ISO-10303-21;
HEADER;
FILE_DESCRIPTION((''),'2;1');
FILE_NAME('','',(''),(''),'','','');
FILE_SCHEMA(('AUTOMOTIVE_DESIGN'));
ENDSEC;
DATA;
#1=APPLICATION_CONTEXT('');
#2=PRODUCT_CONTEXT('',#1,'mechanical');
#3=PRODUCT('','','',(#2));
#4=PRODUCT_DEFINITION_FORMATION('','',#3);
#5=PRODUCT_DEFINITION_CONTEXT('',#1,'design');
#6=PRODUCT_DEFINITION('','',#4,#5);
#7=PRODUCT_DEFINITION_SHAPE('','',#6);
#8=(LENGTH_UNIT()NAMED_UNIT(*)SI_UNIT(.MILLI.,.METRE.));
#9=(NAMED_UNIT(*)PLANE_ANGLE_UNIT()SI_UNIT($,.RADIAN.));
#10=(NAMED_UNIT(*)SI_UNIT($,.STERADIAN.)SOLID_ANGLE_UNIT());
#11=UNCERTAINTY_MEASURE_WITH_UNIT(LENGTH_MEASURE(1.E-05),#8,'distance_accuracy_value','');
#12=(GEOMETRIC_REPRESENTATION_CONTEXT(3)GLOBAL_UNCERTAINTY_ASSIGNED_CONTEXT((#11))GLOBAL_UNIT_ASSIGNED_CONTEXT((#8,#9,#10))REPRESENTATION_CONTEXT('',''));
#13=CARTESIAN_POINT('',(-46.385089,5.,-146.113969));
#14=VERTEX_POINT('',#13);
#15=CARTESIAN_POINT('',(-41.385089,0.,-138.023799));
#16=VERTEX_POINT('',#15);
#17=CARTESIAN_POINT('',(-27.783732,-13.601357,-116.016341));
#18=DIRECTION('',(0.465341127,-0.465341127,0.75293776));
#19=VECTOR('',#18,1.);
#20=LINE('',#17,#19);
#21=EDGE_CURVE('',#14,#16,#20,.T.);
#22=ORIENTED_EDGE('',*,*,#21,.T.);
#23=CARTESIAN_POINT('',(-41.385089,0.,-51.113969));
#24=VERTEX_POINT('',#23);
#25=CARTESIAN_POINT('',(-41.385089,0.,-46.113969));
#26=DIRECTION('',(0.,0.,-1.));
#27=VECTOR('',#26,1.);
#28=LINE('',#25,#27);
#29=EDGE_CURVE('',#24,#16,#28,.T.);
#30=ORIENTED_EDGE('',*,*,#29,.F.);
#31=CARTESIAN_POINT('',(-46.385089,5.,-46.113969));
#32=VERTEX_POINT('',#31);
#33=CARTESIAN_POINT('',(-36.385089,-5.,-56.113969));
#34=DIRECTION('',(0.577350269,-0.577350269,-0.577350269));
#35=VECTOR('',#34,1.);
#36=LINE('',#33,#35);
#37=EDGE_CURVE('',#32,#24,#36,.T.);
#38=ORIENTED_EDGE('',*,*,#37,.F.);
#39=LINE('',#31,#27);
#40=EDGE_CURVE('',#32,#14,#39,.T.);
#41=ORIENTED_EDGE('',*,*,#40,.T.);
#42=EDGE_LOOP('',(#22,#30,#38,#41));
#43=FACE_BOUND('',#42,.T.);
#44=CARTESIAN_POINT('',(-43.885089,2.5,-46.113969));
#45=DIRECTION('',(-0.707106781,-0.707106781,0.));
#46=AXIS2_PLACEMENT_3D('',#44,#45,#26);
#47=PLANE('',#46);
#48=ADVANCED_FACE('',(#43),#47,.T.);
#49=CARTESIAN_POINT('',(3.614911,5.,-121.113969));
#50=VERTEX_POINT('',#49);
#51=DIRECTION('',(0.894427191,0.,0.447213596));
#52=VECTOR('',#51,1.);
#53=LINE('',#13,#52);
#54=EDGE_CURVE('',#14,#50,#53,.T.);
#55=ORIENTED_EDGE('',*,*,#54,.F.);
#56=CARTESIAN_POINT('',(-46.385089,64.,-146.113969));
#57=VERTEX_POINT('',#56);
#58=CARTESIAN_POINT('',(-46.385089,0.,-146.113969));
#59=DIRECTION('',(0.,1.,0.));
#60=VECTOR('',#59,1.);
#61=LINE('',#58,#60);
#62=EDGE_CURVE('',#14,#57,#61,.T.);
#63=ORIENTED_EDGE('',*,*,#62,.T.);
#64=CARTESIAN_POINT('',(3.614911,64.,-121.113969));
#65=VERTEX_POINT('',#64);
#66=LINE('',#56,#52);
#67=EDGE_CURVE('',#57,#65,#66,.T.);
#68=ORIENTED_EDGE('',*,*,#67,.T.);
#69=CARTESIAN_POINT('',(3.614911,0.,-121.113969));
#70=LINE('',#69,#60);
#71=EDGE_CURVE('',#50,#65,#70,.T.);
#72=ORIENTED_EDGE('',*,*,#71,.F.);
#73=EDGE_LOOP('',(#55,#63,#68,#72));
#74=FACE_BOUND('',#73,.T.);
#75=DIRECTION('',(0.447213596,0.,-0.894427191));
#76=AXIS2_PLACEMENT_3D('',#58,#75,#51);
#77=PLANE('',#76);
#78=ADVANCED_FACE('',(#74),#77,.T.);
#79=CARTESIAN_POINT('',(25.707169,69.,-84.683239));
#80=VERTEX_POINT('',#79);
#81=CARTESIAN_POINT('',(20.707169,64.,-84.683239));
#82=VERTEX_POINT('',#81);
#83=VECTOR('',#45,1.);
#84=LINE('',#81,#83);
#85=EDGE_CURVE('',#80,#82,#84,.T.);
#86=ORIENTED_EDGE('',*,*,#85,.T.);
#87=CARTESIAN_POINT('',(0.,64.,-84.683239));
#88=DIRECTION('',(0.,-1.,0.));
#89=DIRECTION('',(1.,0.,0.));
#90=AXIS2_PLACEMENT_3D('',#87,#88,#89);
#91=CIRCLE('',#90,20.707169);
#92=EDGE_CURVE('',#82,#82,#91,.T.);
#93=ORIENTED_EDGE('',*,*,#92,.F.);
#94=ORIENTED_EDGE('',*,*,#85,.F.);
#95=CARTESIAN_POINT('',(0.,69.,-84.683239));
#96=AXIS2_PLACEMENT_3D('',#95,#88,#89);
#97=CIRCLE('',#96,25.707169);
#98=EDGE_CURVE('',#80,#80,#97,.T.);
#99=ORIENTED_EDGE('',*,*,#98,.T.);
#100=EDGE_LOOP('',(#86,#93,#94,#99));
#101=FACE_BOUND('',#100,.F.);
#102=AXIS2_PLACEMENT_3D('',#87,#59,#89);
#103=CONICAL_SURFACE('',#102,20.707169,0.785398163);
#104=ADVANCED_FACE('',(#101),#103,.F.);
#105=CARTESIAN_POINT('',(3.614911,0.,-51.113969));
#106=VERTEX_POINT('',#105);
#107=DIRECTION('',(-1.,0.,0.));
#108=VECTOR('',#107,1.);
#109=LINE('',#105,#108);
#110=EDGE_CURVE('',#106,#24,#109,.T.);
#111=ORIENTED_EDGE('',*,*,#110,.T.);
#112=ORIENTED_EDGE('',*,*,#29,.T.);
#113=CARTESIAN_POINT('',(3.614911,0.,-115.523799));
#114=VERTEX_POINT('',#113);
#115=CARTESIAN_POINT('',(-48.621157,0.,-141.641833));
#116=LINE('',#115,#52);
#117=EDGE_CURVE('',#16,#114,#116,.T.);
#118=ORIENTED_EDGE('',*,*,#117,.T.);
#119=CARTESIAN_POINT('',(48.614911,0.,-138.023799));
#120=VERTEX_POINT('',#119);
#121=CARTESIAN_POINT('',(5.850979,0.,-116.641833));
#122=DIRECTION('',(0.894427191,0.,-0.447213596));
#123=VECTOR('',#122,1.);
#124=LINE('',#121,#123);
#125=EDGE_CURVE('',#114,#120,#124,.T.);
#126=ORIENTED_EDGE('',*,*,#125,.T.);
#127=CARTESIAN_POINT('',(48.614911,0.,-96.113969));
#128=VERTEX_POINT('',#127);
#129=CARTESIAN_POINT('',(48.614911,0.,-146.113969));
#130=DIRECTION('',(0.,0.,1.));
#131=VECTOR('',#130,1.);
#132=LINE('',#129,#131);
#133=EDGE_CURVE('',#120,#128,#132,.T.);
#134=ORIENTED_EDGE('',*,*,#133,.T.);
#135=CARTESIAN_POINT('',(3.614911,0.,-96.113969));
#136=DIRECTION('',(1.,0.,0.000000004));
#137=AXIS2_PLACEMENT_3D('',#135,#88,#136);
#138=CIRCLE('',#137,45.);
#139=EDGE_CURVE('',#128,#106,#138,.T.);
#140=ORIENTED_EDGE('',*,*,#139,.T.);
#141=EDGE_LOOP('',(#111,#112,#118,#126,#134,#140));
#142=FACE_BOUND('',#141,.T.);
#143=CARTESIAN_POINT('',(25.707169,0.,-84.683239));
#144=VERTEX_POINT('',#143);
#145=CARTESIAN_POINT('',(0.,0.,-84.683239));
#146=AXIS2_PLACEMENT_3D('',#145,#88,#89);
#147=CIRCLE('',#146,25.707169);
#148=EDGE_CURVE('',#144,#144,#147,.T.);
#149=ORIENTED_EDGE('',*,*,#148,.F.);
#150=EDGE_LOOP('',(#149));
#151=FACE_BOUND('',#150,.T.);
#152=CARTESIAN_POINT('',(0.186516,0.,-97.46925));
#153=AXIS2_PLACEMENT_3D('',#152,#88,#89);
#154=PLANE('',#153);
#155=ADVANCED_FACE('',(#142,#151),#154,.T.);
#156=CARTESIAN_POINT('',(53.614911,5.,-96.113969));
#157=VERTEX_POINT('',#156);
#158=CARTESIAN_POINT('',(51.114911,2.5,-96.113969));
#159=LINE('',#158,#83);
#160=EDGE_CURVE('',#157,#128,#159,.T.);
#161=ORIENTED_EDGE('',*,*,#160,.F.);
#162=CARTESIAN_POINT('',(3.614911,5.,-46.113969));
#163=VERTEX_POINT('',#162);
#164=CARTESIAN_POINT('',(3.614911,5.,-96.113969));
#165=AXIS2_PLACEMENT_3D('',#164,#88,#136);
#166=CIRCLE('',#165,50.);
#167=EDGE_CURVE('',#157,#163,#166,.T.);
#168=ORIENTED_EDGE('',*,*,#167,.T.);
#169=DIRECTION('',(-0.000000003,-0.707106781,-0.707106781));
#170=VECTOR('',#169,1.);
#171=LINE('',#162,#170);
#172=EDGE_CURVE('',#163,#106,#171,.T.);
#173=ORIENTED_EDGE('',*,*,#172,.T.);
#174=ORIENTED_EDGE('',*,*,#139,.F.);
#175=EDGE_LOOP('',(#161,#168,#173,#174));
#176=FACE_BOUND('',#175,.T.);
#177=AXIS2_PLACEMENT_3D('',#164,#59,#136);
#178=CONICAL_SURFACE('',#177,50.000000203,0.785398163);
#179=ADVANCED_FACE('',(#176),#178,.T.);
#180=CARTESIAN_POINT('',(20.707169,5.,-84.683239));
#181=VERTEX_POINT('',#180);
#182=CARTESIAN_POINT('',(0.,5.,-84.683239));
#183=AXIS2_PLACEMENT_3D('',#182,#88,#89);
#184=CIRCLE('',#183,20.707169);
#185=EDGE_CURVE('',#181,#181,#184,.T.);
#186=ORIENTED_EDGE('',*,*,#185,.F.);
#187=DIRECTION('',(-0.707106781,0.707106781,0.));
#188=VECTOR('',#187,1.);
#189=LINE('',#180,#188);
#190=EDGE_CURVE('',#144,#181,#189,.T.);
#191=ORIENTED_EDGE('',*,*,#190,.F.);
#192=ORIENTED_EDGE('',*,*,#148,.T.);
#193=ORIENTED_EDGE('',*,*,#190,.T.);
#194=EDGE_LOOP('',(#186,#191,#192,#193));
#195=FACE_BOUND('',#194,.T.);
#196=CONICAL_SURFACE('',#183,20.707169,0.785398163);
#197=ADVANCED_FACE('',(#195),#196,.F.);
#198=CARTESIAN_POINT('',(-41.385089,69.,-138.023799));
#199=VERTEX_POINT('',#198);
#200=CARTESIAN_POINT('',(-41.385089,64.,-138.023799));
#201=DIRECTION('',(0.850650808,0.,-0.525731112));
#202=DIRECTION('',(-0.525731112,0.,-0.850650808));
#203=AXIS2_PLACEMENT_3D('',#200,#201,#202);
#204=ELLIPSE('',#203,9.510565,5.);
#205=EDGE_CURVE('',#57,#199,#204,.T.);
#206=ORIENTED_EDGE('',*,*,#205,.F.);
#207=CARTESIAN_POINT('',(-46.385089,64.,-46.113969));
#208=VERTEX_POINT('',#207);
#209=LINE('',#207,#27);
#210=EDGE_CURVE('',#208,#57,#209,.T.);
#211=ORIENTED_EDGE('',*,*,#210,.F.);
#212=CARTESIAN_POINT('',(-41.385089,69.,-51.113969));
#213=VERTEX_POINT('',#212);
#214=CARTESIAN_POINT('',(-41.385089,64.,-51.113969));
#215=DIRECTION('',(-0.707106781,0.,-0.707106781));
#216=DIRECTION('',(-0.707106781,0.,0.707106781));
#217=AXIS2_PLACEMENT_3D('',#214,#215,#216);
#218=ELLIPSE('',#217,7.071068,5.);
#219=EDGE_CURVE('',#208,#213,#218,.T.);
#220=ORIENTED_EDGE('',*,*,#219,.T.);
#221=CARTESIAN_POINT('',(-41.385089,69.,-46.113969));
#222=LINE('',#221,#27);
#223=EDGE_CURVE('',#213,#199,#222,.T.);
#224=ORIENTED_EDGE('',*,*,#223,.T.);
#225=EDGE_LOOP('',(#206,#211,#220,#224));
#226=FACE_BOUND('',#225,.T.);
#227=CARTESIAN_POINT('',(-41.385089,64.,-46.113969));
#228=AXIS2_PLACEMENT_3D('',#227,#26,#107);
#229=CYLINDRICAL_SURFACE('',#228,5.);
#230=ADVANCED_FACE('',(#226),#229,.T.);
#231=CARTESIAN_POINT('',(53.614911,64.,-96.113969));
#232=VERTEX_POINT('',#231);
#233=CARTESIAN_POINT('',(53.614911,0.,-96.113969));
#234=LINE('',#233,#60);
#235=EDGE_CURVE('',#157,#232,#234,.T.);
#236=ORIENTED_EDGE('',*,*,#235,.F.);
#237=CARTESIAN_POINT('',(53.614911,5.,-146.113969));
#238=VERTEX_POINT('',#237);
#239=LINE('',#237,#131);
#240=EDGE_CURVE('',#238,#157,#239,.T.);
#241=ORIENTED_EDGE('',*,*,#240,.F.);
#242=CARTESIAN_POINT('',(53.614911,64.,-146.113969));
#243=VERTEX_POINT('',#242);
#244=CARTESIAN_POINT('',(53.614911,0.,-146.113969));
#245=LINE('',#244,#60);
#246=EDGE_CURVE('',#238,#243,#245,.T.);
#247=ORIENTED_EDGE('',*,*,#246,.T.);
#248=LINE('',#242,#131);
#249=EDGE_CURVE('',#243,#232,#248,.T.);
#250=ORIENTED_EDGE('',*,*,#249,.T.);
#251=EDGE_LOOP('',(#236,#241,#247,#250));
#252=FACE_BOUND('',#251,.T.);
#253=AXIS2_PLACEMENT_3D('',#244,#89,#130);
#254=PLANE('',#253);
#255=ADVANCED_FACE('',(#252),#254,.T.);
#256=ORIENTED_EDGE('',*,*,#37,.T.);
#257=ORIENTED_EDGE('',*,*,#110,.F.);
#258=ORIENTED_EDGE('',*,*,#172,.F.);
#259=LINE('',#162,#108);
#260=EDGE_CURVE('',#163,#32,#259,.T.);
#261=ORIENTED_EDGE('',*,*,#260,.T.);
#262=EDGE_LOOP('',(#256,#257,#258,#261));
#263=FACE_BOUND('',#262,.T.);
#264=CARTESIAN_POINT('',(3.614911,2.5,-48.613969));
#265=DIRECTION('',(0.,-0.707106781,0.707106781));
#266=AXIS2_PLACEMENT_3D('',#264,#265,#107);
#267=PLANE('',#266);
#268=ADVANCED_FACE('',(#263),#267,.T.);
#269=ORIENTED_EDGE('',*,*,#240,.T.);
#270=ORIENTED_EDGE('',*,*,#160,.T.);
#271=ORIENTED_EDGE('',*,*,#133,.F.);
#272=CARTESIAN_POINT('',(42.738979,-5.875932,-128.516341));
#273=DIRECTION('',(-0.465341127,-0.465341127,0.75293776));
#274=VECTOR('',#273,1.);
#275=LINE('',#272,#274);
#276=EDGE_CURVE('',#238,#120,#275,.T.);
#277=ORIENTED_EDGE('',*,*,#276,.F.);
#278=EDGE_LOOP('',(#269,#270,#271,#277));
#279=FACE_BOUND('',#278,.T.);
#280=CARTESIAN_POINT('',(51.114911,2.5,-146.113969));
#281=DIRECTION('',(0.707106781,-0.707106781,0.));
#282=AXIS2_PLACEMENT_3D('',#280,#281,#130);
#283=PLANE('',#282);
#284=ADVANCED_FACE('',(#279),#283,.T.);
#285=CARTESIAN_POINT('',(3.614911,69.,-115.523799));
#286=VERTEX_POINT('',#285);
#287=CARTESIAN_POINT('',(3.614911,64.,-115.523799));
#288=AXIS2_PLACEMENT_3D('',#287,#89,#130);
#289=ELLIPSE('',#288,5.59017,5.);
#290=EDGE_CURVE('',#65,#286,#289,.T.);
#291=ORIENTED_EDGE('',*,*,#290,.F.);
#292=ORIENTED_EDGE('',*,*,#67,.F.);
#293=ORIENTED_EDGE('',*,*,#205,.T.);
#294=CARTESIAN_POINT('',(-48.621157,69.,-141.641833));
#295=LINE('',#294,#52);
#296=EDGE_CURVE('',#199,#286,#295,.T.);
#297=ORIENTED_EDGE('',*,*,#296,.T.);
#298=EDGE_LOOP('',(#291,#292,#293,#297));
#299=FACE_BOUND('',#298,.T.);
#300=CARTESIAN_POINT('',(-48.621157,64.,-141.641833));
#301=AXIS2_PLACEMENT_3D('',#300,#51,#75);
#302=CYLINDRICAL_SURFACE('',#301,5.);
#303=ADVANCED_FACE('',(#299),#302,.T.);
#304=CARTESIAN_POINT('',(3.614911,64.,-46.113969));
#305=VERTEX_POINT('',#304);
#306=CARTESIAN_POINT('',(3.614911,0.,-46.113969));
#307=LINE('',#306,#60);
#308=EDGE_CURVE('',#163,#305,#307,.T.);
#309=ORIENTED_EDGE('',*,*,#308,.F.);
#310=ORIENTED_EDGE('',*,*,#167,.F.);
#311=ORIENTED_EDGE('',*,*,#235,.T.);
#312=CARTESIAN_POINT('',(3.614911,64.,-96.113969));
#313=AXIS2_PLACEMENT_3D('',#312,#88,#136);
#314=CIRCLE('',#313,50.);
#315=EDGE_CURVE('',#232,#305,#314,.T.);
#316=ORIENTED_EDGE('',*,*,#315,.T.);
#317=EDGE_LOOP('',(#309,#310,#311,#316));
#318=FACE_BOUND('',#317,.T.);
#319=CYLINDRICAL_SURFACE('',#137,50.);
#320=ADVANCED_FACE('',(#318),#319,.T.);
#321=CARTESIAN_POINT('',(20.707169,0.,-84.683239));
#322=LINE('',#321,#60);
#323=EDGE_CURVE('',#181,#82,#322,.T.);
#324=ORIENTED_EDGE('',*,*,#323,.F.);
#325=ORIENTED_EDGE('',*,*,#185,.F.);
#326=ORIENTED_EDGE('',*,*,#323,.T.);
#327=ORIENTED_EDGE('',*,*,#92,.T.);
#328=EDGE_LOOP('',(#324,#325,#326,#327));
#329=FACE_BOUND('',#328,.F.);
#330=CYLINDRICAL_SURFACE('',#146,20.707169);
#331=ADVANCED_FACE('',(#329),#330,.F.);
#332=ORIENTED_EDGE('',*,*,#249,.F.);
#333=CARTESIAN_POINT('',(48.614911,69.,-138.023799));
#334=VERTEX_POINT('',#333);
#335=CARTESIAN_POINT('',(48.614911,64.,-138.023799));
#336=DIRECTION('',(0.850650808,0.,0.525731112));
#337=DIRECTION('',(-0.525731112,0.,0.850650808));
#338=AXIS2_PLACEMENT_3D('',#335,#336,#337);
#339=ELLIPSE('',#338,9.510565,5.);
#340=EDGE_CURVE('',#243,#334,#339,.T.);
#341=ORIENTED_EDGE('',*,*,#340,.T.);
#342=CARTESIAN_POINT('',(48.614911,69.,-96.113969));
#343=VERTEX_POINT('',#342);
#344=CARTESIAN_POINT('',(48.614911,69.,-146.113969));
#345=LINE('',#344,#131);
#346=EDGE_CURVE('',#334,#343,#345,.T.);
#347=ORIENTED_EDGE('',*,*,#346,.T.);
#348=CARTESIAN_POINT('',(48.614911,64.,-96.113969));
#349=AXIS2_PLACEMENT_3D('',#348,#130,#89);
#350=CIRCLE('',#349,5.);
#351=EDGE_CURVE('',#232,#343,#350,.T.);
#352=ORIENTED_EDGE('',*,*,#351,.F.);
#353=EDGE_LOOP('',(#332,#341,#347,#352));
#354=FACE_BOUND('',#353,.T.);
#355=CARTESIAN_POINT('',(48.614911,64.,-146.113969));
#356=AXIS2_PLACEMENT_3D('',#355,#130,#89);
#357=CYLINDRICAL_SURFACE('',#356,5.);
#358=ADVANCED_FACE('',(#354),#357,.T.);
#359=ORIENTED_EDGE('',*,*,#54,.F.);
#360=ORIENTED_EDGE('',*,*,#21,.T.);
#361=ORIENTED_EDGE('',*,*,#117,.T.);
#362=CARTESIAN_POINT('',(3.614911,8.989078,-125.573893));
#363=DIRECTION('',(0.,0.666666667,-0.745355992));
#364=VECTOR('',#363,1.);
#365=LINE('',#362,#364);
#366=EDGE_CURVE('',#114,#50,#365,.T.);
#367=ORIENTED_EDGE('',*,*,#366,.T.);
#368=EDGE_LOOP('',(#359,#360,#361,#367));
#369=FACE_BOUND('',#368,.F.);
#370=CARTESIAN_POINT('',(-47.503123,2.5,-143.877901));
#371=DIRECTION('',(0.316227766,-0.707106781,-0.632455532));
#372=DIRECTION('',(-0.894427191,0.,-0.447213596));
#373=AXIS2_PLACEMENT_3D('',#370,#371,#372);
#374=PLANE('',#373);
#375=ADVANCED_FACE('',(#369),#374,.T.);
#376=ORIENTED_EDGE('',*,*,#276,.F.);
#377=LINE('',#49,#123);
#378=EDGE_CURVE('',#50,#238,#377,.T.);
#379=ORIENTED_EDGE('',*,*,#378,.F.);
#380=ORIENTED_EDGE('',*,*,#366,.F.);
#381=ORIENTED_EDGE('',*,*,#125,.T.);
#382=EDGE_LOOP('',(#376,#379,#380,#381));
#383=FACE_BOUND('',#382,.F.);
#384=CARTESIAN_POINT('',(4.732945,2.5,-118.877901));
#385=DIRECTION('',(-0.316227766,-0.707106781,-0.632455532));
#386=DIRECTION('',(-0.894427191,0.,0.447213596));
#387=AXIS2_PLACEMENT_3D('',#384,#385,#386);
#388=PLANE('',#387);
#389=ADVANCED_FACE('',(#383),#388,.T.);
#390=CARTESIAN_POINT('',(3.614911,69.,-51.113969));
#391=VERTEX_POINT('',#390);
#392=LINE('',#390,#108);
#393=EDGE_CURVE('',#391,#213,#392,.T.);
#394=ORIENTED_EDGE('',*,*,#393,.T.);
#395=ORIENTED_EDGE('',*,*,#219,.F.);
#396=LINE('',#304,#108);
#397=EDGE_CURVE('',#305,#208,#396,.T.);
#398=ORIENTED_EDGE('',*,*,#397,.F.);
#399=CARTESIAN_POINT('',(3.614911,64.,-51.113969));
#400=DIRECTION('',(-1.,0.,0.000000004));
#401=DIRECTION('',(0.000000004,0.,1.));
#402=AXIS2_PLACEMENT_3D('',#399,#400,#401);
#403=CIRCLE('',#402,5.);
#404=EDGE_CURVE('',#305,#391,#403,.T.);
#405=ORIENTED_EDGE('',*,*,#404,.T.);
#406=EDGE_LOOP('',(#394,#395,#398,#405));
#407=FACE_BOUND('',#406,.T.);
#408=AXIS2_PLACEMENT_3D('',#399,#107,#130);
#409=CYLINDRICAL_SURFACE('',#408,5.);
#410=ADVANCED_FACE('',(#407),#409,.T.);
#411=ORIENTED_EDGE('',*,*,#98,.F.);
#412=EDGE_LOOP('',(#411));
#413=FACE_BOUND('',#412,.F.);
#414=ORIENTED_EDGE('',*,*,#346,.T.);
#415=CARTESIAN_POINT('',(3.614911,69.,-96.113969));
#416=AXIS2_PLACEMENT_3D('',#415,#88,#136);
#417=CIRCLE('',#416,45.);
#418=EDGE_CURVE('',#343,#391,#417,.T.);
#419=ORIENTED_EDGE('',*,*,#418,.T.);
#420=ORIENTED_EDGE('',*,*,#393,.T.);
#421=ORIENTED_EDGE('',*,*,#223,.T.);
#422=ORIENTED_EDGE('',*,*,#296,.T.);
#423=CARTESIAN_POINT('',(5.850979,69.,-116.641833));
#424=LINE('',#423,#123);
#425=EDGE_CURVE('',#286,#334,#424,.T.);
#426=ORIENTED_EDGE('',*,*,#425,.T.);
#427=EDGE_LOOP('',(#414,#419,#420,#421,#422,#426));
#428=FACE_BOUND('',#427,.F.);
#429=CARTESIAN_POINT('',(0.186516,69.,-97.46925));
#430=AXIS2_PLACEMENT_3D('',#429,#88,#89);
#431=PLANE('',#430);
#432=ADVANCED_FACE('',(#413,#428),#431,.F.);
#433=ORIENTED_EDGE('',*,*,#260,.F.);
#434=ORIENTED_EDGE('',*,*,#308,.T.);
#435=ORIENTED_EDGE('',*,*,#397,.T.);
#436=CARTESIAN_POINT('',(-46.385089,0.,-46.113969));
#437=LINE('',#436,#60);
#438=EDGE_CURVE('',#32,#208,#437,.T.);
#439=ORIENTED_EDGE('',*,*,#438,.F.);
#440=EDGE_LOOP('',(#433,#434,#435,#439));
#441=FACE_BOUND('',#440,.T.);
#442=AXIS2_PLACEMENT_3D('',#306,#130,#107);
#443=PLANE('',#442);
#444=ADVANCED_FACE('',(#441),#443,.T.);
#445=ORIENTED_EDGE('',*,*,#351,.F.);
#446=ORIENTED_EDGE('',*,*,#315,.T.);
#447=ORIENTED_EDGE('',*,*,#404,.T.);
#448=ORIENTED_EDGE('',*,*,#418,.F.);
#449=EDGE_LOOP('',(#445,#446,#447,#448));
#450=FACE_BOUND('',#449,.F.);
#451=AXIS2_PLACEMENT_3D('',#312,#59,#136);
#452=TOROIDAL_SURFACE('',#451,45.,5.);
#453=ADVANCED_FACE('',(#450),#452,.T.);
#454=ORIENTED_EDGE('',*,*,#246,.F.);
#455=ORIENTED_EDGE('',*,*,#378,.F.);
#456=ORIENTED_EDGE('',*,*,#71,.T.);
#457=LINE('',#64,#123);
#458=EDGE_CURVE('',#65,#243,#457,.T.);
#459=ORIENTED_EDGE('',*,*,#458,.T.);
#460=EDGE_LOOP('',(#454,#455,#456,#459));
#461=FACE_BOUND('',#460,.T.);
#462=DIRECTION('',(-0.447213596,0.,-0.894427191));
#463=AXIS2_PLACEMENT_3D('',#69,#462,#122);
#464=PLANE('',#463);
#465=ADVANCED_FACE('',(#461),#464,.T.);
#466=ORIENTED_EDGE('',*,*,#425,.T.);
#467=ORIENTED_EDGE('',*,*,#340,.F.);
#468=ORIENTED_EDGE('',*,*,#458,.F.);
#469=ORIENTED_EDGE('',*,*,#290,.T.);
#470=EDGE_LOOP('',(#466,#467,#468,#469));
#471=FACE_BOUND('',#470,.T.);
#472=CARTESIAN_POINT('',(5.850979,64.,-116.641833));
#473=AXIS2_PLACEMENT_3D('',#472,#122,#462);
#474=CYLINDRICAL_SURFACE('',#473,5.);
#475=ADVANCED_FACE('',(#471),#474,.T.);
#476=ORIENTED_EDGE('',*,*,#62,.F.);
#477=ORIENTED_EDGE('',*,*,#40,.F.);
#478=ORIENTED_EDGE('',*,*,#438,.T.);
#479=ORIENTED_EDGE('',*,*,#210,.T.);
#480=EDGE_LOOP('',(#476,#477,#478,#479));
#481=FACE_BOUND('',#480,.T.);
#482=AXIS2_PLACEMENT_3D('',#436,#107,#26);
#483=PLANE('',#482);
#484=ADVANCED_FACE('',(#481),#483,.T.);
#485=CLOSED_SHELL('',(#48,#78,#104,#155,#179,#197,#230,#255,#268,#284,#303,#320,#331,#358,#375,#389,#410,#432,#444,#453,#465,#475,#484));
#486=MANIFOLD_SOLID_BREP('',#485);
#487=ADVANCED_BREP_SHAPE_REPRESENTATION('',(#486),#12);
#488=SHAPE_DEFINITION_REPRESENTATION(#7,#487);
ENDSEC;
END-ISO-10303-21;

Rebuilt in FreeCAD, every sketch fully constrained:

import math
import FreeCAD as App
import Part
import Sketcher


def edges_at(feature, points):
    """Names of the edges that pass closest to the given points."""
    edges = feature.Shape.Edges
    near = lambda p: min(range(len(edges)), key=lambda i: edges[i].distToShape(Part.Vertex(*p))[0])
    return sorted({f"Edge{near(p) + 1}" for p in points})

doc = App.newDocument("Part")
body = doc.addObject("PartDesign::Body", "Body")

sketch1 = doc.addObject("Sketcher::SketchObject", "Sketch")
body.addObject(sketch1)
sketch1.AttachmentSupport = (doc.XZ_Plane, [""])
sketch1.MapMode = "FlatFace"
sketch1.addGeometry([
    Part.LineSegment(App.Vector(-46, -46, 0), App.Vector(-46, -146, 0)),
    Part.LineSegment(App.Vector(-46, -146, 0), App.Vector(4, -121, 0)),
    Part.LineSegment(App.Vector(4, -121, 0), App.Vector(54, -146, 0)),
    Part.LineSegment(App.Vector(54, -146, 0), App.Vector(54, -96, 0)),
    Part.ArcOfCircle(Part.Circle(App.Vector(4, -96, 0), App.Vector(0, 0, 1), 50), math.radians(0), math.radians(90)),
    Part.LineSegment(App.Vector(4, -46, 0), App.Vector(-46, -46, 0)),
], False)
sketch1.addConstraint([
    Sketcher.Constraint("Coincident", 0, 2, 1, 1),
    Sketcher.Constraint("Coincident", 1, 2, 2, 1),
    Sketcher.Constraint("Coincident", 2, 2, 3, 1),
    Sketcher.Constraint("Tangent", 3, 2, 4, 1),
    Sketcher.Constraint("Tangent", 4, 2, 5, 1),
    Sketcher.Constraint("Coincident", 5, 2, 0, 1),
    Sketcher.Constraint("Vertical", 0),
    Sketcher.Constraint("Vertical", 3),
    Sketcher.Constraint("Horizontal", 5),
    Sketcher.Constraint("Horizontal", 0, 2, 2, 2),
    Sketcher.Constraint("Vertical", 4, 3, 1, 2),
    Sketcher.Constraint("Equal", 5, 3),
    Sketcher.Constraint("Equal", 1, 2),
    Sketcher.Constraint("Radius", 4, 50.0),
    Sketcher.Constraint("DistanceY", 1, 2, 4, 3, 25.0),
    Sketcher.Constraint("DistanceX", -1, 1, 4, 3, 3.614911),
    Sketcher.Constraint("DistanceY", 4, 3, -1, 1, 96.113969),
])
pad1 = doc.addObject("PartDesign::Pad", "Pad")
body.addObject(pad1)
pad1.Profile = sketch1
pad1.Length = 69
pad1.Reversed = True
doc.recompute()

fillet = doc.addObject("PartDesign::Fillet", "Fillet")
body.addObject(fillet)
fillet.Base = (pad1, edges_at(pad1, [
    (-21.385, 69, -46.114),
    (-46.385, 69, -96.114),
    (-21.385, 69, -133.614),
    (28.615, 69, -133.614),
    (53.615, 69, -121.114),
    (38.97, 69, -60.759),
]))
fillet.Radius = 5
doc.recompute()

chamfer = doc.addObject("PartDesign::Chamfer", "Chamfer")
body.addObject(chamfer)
chamfer.Base = (fillet, edges_at(fillet, [
    (-21.385, 0, -46.114),
    (-46.385, 0, -96.114),
    (-21.385, 0, -133.614),
    (28.615, 0, -133.614),
    (53.615, 0, -121.114),
    (38.97, 0, -60.759),
]))
chamfer.Size = 5

sketch2 = doc.addObject("Sketcher::SketchObject", "Sketch001")
body.addObject(sketch2)
sketch2.AttachmentSupport = (doc.XZ_Plane, [""])
sketch2.MapMode = "FlatFace"
sketch2.addGeometry(Part.Circle(App.Vector(0, -85, 0), App.Vector(0, 0, 1), 21), False)
sketch2.addConstraint([
    Sketcher.Constraint("PointOnObject", 0, 3, -2),
    Sketcher.Constraint("Diameter", 0, 41.414338),
    Sketcher.Constraint("DistanceY", 0, 3, -1, 1, 84.683239),
])
pocket1 = doc.addObject("PartDesign::Pocket", "Pocket")
body.addObject(pocket1)
pocket1.Profile = sketch2
pocket1.Length = 69
doc.recompute()

chamfer2 = doc.addObject("PartDesign::Chamfer", "Chamfer001")
body.addObject(chamfer2)
chamfer2.Base = (pocket1, edges_at(pocket1, [(20.707, 34.5, -84.683), (-20.707, 0, -84.683), (-20.707, 69, -84.683)]))
chamfer2.Size = 5

doc.recompute()
